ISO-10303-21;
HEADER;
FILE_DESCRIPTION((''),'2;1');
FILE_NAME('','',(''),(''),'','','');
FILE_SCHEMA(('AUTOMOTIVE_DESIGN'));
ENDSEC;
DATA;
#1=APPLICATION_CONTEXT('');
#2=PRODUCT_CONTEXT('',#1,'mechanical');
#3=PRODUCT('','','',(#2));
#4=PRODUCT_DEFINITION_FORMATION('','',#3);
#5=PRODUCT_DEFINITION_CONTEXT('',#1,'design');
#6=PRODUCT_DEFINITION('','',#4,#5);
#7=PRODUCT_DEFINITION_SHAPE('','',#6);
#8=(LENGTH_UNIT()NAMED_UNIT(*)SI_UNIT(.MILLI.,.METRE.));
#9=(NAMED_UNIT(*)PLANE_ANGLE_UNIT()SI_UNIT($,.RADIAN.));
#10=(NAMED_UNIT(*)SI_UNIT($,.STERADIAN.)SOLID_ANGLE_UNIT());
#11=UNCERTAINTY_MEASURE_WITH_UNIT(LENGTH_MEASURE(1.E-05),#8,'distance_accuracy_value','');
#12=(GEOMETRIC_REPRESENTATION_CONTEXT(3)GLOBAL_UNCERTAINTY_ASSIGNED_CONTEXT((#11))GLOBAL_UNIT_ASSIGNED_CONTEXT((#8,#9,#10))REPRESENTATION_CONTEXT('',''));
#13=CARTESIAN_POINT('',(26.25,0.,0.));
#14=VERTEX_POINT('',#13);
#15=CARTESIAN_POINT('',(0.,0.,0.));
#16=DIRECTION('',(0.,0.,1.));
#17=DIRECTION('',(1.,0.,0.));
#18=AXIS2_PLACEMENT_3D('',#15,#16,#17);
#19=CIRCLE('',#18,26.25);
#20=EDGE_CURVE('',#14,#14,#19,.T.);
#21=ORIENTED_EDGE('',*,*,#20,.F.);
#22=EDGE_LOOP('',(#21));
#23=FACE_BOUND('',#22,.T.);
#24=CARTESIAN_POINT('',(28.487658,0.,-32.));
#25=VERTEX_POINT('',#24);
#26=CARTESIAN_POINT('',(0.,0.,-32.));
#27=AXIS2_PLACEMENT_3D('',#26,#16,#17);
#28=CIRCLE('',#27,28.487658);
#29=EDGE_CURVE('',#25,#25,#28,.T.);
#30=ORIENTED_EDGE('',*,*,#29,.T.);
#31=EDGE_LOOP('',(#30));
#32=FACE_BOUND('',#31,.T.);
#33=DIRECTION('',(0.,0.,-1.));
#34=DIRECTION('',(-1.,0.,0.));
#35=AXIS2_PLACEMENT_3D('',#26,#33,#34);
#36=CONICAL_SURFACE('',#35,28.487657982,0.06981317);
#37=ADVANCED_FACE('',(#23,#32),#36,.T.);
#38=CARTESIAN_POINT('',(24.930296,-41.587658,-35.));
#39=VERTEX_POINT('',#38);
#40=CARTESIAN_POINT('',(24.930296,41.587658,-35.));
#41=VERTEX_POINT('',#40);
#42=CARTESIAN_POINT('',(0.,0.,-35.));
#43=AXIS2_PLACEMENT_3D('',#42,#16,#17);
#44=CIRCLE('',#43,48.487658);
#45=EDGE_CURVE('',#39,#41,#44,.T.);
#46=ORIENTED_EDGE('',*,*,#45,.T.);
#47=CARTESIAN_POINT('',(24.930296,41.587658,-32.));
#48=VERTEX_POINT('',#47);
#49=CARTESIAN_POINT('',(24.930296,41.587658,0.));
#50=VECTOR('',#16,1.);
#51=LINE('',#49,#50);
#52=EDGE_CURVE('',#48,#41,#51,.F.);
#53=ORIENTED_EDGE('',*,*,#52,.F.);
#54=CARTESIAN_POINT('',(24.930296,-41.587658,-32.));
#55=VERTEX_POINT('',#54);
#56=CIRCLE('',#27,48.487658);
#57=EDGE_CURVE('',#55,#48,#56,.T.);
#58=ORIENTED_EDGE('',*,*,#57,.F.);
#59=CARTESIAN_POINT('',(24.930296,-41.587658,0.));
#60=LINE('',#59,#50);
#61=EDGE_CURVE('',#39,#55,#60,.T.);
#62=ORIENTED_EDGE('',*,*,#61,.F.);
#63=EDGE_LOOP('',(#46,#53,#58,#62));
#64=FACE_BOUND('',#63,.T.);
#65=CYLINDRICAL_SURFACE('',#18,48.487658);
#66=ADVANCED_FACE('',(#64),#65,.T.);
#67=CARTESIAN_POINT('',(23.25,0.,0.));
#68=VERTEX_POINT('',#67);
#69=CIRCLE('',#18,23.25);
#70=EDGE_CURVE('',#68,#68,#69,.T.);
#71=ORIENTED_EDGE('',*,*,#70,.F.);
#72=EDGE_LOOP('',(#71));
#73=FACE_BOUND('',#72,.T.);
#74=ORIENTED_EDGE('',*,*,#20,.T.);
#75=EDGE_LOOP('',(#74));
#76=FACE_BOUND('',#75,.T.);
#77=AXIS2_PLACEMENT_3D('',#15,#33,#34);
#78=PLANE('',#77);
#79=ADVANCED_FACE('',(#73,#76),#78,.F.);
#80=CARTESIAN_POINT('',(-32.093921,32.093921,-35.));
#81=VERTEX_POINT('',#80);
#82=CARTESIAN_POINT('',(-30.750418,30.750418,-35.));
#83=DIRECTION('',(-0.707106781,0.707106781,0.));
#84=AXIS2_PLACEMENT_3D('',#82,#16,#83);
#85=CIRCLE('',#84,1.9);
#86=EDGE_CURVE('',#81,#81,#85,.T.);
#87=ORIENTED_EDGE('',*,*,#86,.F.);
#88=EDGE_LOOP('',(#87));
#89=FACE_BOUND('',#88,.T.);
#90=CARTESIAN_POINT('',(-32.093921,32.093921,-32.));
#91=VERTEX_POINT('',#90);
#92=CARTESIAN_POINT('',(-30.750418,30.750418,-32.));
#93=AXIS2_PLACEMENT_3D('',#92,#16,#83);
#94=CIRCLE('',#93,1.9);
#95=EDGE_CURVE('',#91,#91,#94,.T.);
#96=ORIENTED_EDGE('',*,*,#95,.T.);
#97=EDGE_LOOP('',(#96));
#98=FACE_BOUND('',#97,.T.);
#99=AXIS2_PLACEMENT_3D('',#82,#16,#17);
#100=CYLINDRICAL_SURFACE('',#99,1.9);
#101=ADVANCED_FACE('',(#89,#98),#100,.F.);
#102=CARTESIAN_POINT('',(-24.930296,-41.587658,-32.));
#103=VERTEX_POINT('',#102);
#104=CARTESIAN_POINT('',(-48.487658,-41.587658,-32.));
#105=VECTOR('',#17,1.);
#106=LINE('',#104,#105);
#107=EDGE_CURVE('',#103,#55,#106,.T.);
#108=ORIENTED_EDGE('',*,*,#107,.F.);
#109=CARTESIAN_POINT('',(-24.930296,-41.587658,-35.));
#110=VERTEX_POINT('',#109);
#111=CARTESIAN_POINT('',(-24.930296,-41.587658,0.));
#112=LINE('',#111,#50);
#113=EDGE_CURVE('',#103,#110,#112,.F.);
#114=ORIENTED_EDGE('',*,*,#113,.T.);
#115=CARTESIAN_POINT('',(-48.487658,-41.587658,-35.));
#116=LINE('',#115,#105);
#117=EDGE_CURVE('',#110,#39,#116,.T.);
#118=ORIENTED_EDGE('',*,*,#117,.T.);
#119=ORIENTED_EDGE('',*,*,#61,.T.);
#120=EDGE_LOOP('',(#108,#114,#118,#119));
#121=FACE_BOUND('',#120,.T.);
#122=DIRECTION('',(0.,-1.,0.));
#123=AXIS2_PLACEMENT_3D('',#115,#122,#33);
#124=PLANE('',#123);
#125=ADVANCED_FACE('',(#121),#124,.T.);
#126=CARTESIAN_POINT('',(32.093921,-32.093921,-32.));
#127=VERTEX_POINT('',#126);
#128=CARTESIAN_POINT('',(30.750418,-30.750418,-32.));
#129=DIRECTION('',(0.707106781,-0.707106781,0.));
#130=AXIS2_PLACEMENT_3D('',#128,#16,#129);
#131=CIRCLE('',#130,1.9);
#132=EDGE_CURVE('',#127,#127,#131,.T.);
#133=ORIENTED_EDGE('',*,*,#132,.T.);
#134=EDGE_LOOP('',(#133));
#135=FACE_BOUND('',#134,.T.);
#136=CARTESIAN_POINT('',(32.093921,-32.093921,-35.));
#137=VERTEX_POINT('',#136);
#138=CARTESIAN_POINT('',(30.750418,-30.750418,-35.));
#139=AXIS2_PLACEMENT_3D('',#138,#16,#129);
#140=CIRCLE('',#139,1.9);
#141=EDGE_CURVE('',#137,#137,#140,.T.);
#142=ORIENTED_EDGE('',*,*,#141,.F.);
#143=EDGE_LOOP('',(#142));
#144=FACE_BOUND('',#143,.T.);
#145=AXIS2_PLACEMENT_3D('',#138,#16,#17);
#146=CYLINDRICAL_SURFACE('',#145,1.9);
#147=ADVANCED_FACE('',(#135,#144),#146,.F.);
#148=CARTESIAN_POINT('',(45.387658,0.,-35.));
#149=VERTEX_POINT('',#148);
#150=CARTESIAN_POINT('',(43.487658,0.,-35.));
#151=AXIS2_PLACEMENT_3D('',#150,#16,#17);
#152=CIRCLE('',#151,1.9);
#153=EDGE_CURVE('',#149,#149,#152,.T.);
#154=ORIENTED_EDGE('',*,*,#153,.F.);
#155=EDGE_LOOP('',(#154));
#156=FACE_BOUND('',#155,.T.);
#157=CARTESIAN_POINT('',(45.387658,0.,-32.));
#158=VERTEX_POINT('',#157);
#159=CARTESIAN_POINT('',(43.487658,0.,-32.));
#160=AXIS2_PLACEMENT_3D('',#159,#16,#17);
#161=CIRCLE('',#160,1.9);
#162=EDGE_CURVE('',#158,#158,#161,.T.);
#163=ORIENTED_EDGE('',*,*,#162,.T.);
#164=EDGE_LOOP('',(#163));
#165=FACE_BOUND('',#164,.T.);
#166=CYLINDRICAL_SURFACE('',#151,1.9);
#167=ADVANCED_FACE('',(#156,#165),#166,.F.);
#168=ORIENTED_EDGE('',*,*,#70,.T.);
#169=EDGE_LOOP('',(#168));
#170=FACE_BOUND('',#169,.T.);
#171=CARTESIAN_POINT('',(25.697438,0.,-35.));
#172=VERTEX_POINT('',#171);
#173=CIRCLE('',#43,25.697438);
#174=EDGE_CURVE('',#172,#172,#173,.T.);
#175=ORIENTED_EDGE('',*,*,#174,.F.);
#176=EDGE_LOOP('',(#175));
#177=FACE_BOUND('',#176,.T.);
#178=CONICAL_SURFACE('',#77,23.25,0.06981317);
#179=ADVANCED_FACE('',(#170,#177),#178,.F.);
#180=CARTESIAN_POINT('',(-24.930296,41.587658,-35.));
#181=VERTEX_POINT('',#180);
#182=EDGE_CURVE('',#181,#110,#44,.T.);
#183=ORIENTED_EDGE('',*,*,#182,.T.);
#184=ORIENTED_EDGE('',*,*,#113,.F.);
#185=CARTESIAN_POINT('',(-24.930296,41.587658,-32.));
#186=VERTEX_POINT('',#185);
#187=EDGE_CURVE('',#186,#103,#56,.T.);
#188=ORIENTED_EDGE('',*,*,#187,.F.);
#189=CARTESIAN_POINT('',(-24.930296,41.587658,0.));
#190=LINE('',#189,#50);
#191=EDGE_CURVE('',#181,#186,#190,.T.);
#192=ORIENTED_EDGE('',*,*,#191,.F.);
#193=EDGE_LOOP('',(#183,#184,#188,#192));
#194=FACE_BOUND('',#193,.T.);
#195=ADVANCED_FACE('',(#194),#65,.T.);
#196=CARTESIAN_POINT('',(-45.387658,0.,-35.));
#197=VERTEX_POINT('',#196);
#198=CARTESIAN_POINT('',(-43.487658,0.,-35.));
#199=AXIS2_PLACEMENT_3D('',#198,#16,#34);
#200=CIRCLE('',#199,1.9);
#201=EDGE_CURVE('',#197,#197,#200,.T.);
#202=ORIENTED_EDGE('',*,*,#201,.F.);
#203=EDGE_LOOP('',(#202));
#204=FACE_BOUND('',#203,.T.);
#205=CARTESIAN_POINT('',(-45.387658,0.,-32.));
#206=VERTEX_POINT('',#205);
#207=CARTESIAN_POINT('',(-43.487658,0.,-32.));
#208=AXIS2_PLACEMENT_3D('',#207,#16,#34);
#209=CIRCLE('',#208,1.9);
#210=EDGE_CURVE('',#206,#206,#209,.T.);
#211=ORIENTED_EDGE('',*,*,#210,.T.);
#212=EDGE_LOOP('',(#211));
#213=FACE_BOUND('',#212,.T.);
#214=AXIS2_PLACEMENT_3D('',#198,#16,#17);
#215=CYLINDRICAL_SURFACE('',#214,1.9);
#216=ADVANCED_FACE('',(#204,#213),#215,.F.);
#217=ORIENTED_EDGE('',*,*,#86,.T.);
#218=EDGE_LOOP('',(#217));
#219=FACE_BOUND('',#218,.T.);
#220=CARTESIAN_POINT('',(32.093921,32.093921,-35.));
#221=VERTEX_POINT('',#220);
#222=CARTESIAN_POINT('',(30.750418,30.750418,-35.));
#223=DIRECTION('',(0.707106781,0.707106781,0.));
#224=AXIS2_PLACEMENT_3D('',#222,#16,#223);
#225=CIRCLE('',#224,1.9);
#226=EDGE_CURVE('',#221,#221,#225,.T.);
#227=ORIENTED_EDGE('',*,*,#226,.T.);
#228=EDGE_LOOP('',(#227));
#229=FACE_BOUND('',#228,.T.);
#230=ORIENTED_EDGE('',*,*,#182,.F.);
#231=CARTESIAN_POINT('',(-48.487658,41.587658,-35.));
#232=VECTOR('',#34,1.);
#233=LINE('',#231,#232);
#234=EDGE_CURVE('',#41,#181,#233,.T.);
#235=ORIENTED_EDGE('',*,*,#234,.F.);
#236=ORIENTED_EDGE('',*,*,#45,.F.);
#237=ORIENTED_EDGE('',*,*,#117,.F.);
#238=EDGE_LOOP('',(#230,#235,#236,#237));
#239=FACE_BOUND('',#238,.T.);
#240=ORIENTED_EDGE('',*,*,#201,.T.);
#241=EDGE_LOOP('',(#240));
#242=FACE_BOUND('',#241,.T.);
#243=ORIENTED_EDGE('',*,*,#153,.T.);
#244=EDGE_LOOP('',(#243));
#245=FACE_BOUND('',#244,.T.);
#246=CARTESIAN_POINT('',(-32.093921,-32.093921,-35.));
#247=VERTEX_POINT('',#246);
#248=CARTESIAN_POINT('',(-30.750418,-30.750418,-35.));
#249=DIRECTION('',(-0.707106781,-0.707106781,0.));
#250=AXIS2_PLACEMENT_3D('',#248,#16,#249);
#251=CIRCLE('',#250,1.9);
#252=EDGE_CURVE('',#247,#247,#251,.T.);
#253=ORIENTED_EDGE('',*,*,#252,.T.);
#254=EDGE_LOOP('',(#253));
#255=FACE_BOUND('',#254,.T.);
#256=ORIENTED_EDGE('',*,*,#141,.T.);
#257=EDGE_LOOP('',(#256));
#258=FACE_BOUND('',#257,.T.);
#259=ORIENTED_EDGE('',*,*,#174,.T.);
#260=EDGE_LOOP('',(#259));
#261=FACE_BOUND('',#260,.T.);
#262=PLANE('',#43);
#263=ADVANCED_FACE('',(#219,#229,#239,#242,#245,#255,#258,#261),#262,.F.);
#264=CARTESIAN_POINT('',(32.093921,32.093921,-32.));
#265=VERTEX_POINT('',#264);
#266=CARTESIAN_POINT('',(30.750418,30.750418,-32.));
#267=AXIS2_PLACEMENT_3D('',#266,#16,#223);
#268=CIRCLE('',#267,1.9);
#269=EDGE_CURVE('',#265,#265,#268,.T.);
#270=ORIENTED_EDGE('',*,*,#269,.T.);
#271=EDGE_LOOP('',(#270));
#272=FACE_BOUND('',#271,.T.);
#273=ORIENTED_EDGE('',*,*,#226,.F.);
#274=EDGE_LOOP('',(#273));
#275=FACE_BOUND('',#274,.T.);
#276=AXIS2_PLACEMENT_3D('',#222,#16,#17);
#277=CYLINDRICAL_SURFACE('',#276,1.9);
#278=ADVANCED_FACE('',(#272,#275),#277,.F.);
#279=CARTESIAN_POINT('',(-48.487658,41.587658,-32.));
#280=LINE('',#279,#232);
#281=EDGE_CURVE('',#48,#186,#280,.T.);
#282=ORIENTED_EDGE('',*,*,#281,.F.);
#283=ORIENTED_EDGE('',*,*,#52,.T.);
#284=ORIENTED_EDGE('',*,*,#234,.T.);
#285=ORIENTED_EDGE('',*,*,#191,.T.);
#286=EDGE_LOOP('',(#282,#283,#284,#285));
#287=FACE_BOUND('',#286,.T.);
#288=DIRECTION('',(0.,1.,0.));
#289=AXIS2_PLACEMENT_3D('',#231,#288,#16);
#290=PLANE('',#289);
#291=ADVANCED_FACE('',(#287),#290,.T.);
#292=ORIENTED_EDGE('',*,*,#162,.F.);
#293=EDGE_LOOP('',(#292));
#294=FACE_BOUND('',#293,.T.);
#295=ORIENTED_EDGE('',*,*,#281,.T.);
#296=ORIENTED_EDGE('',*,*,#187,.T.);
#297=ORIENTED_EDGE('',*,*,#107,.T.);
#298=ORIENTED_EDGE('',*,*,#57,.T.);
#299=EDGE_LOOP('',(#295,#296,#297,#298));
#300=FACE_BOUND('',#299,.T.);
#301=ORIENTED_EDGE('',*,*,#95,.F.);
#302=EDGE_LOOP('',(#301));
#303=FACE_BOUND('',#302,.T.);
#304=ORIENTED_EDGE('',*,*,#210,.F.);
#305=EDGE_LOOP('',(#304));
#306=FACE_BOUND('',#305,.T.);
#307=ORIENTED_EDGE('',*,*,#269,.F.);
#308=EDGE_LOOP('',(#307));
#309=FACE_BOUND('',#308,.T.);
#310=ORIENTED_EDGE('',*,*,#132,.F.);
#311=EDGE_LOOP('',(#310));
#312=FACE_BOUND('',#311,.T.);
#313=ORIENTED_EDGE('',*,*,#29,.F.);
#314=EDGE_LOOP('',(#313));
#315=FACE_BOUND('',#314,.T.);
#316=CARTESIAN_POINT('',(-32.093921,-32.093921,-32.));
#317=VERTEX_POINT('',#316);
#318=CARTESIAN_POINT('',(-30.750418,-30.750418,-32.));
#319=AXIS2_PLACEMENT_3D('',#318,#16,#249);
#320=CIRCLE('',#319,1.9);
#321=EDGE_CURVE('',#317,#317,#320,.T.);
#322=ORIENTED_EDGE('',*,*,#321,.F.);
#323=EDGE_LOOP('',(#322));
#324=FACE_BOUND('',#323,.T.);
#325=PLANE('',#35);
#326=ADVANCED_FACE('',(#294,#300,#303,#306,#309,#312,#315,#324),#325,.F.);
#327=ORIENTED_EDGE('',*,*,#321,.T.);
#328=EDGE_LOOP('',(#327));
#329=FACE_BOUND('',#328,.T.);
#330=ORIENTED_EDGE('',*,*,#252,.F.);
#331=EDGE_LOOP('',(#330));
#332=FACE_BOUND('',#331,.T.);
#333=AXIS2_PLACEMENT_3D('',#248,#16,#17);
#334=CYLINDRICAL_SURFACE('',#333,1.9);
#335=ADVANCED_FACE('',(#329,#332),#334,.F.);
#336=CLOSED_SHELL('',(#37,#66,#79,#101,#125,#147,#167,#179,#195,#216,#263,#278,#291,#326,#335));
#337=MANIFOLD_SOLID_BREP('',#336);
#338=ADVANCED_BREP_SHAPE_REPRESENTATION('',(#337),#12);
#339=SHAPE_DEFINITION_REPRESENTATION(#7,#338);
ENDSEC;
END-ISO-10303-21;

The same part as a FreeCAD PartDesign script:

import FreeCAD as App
import Part
import Sketcher
Q = App.Units.Quantity

doc = App.newDocument("Part")
params = doc.addObject("Spreadsheet::Sheet", "Params")
for row, (alias, value) in enumerate([
    ("sketch1_width", "3 mm"),
    ("sketch1_width2", "20 mm"),
    ("revolution_angle", "360 deg"),
    ("sketch2_diameter", "3.8 mm"),
], start=1):
    params.set(f"A{row}", alias)
    params.set(f"B{row}", "=" + value)
    params.setAlias(f"B{row}", alias)

body = doc.addObject("PartDesign::Body", "Body")

sketch1 = body.newObject("Sketcher::SketchObject", "Sketch")
sketch1.AttachmentSupport = (doc.getObject("XZ_Plane"), [""])
sketch1.MapMode = "FlatFace"
sketch1.addGeometry([
    Part.LineSegment(App.Vector(-28.5, -32, 0), App.Vector(-26.2, 0, 0)),
    Part.LineSegment(App.Vector(-26.2, 0, 0), App.Vector(-23.2, 0, 0)),
    Part.LineSegment(App.Vector(-23.2, 0, 0), App.Vector(-25.7, -35, 0)),
    Part.LineSegment(App.Vector(-25.7, -35, 0), App.Vector(-48.5, -35, 0)),
    Part.LineSegment(App.Vector(-48.5, -35, 0), App.Vector(-48.5, -32, 0)),
    Part.LineSegment(App.Vector(-48.5, -32, 0), App.Vector(-28.5, -32, 0)),
], False)
sketch1.addConstraint([
    Sketcher.Constraint("Coincident", 0, 2, 1, 1),
    Sketcher.Constraint("Coincident", 1, 2, 2, 1),
    Sketcher.Constraint("Coincident", 2, 2, 3, 1),
    Sketcher.Constraint("Coincident", 3, 2, 4, 1),
    Sketcher.Constraint("Coincident", 4, 2, 5, 1),
    Sketcher.Constraint("Coincident", 5, 2, 0, 1),
    Sketcher.Constraint("Horizontal", 1),
    Sketcher.Constraint("Horizontal", 3),
    Sketcher.Constraint("Vertical", 4),
    Sketcher.Constraint("Horizontal", 5),
    Sketcher.Constraint("PointOnObject", 0, 2, -1),
    Sketcher.Constraint("Parallel", 0, 2),
    Sketcher.Constraint("Equal", 1, 4),
    Sketcher.Constraint("DistanceX", 1, 1, 1, 2, Q("3 mm")),
    Sketcher.Constraint("DistanceX", 5, 1, 5, 2, Q("20 mm")),
    Sketcher.Constraint("Angle", 0, Q("86 deg")),
    Sketcher.Constraint("DistanceY", 2, 2, -1, 1, Q("35 mm")),
    Sketcher.Constraint("DistanceX", 0, 2, -1, 1, Q("26.25 mm")),
])
sketch1.setExpression("Constraints[13]", "Params.sketch1_width")
sketch1.setExpression("Constraints[14]", "Params.sketch1_width2")
revolution = body.newObject("PartDesign::Revolution", "Revolution")
revolution.Profile = sketch1
revolution.ReferenceAxis = (sketch1, ["V_Axis"])
revolution.setExpression("Angle", "Params.revolution_angle")

sketch2 = body.newObject("Sketcher::SketchObject", "Sketch001")
sketch2.AttachmentSupport = (doc.getObject("XY_Plane"), [""])
sketch2.MapMode = "FlatFace"
sketch2.AttachmentOffset = App.Placement(App.Vector(0, 0, -32), App.Rotation())
sketch2.addGeometry(Part.Circle(App.Vector(43.5, 0, 0), App.Vector(0, 0, 1), 1.9), False)
sketch2.addConstraint([
    Sketcher.Constraint("PointOnObject", 0, 3, -1),
    Sketcher.Constraint("Diameter", 0, Q("3.8 mm")),
    Sketcher.Constraint("DistanceX", -1, 1, 0, 3, Q("43.487658 mm")),
])
sketch2.setExpression("Constraints[1]", "Params.sketch2_diameter")
pocket1 = body.newObject("PartDesign::Pocket", "Pocket")
pocket1.Profile = sketch2
pocket1.Type = "ThroughAll"
doc.recompute()

polarpattern = body.newObject("PartDesign::PolarPattern", "PolarPattern")
polarpattern.Originals = [pocket1]
polarpattern.Axis = (doc.getObject("Z_Axis"), [""])
polarpattern.Angle = 360
polarpattern.Occurrences = 8
body.Tip = polarpattern

sketch3 = body.newObject("Sketcher::SketchObject", "Sketch002")
sketch3.AttachmentSupport = (doc.getObject("XY_Plane"), [""])
sketch3.MapMode = "FlatFace"
sketch3.AttachmentOffset = App.Placement(App.Vector(0, 0, -32), App.Rotation())
sketch3.addGeometry([
    Part.LineSegment(App.Vector(-98, 92, 0), App.Vector(-98, -92, 0)),
    Part.LineSegment(App.Vector(-98, -92, 0), App.Vector(98, -92, 0)),
    Part.LineSegment(App.Vector(98, -92, 0), App.Vector(98, 92, 0)),
    Part.LineSegment(App.Vector(98, 92, 0), App.Vector(-98, 92, 0)),
    Part.LineSegment(App.Vector(48, -42, 0), App.Vector(-48, -42, 0)),
    Part.LineSegment(App.Vector(-48, -42, 0), App.Vector(-48, 42, 0)),
    Part.LineSegment(App.Vector(-48, 42, 0), App.Vector(48, 42, 0)),
    Part.LineSegment(App.Vector(48, 42, 0), App.Vector(48, -42, 0)),
], False)
sketch3.addConstraint([
    Sketcher.Constraint("Coincident", 0, 2, 1, 1),
    Sketcher.Constraint("Coincident", 1, 2, 2, 1),
    Sketcher.Constraint("Coincident", 2, 2, 3, 1),
    Sketcher.Constraint("Coincident", 3, 2, 0, 1),
    Sketcher.Constraint("Coincident", 4, 2, 5, 1),
    Sketcher.Constraint("Coincident", 5, 2, 6, 1),
    Sketcher.Constraint("Coincident", 6, 2, 7, 1),
    Sketcher.Constraint("Coincident", 7, 2, 4, 1),
    Sketcher.Constraint("Vertical", 0),
    Sketcher.Constraint("Horizontal", 1),
    Sketcher.Constraint("Vertical", 2),
    Sketcher.Constraint("Horizontal", 3),
    Sketcher.Constraint("Horizontal", 4),
    Sketcher.Constraint("Vertical", 5),
    Sketcher.Constraint("Horizontal", 6),
    Sketcher.Constraint("Vertical", 7),
    Sketcher.Constraint("Symmetric", 0, 2, 2, 2, -1, 1),
    Sketcher.Constraint("Symmetric", 4, 2, 6, 2, -1, 1),
    Sketcher.Constraint("DistanceX", 0, 2, 4, 2, Q("50 mm")),
    Sketcher.Constraint("DistanceY", 0, 2, 4, 2, Q("50 mm")),
    Sketcher.Constraint("DistanceX", 1, 1, 1, 2, Q("196.975316 mm")),
    Sketcher.Constraint("DistanceY", 0, 2, 0, 1, Q("183.175316 mm")),
])
pocket2 = body.newObject("PartDesign::Pocket", "Pocket001")
pocket2.Profile = sketch3
pocket2.Type = "ThroughAll"

doc.recompute()
